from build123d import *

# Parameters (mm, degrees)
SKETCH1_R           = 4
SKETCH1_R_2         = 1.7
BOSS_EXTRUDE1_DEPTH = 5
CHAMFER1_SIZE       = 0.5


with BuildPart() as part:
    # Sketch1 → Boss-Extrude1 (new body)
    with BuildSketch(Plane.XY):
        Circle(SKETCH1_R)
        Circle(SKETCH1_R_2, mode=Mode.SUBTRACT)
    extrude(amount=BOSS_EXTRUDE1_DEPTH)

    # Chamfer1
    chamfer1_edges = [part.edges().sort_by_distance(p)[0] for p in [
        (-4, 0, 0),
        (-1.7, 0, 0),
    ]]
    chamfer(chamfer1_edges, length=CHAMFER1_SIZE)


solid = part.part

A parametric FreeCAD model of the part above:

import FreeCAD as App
import Part
import Sketcher
from FreeCAD import Vector
Q = App.Units.Quantity


def edges_at(feature, points):
    """Names of the edges that pass closest to the given points."""
    edges = feature.Shape.Edges
    near = lambda p: min(range(len(edges)), key=lambda i: edges[i].distToShape(Part.Vertex(*p))[0])
    return sorted({f"Edge{near(p) + 1}" for p in points})

doc = App.newDocument("Part")
body = doc.addObject("PartDesign::Body", "Body")

sketch1 = body.newObject("Sketcher::SketchObject", "Sketch")
sketch1.AttachmentSupport = (doc.getObject("XY_Plane"), [""])
sketch1.MapMode = "FlatFace"
sketch1.addGeometry([
    Part.Circle(Vector(0, 0, 0), Vector(0, 0, 1), 4),
    Part.Circle(Vector(0, 0, 0), Vector(0, 0, 1), 1.7),
], False)
sketch1.addConstraint([
    Sketcher.Constraint("Coincident", 0, 3, -1, 1),
    Sketcher.Constraint("Coincident", 1, 3, -1, 1),
    Sketcher.Constraint("Diameter", 0, Q("8 mm")),
    Sketcher.Constraint("Diameter", 1, Q("3.4 mm")),
])
pad1 = body.newObject("PartDesign::Pad", "Pad")
pad1.Profile = sketch1
pad1.Length = 5
doc.recompute()

chamfer = body.newObject("PartDesign::Chamfer", "Chamfer")
chamfer.Base = (pad1, edges_at(pad1, [(-4, 0, 0), (-1.7, 0, 0)]))
chamfer.Size = 0.5

doc.recompute()
